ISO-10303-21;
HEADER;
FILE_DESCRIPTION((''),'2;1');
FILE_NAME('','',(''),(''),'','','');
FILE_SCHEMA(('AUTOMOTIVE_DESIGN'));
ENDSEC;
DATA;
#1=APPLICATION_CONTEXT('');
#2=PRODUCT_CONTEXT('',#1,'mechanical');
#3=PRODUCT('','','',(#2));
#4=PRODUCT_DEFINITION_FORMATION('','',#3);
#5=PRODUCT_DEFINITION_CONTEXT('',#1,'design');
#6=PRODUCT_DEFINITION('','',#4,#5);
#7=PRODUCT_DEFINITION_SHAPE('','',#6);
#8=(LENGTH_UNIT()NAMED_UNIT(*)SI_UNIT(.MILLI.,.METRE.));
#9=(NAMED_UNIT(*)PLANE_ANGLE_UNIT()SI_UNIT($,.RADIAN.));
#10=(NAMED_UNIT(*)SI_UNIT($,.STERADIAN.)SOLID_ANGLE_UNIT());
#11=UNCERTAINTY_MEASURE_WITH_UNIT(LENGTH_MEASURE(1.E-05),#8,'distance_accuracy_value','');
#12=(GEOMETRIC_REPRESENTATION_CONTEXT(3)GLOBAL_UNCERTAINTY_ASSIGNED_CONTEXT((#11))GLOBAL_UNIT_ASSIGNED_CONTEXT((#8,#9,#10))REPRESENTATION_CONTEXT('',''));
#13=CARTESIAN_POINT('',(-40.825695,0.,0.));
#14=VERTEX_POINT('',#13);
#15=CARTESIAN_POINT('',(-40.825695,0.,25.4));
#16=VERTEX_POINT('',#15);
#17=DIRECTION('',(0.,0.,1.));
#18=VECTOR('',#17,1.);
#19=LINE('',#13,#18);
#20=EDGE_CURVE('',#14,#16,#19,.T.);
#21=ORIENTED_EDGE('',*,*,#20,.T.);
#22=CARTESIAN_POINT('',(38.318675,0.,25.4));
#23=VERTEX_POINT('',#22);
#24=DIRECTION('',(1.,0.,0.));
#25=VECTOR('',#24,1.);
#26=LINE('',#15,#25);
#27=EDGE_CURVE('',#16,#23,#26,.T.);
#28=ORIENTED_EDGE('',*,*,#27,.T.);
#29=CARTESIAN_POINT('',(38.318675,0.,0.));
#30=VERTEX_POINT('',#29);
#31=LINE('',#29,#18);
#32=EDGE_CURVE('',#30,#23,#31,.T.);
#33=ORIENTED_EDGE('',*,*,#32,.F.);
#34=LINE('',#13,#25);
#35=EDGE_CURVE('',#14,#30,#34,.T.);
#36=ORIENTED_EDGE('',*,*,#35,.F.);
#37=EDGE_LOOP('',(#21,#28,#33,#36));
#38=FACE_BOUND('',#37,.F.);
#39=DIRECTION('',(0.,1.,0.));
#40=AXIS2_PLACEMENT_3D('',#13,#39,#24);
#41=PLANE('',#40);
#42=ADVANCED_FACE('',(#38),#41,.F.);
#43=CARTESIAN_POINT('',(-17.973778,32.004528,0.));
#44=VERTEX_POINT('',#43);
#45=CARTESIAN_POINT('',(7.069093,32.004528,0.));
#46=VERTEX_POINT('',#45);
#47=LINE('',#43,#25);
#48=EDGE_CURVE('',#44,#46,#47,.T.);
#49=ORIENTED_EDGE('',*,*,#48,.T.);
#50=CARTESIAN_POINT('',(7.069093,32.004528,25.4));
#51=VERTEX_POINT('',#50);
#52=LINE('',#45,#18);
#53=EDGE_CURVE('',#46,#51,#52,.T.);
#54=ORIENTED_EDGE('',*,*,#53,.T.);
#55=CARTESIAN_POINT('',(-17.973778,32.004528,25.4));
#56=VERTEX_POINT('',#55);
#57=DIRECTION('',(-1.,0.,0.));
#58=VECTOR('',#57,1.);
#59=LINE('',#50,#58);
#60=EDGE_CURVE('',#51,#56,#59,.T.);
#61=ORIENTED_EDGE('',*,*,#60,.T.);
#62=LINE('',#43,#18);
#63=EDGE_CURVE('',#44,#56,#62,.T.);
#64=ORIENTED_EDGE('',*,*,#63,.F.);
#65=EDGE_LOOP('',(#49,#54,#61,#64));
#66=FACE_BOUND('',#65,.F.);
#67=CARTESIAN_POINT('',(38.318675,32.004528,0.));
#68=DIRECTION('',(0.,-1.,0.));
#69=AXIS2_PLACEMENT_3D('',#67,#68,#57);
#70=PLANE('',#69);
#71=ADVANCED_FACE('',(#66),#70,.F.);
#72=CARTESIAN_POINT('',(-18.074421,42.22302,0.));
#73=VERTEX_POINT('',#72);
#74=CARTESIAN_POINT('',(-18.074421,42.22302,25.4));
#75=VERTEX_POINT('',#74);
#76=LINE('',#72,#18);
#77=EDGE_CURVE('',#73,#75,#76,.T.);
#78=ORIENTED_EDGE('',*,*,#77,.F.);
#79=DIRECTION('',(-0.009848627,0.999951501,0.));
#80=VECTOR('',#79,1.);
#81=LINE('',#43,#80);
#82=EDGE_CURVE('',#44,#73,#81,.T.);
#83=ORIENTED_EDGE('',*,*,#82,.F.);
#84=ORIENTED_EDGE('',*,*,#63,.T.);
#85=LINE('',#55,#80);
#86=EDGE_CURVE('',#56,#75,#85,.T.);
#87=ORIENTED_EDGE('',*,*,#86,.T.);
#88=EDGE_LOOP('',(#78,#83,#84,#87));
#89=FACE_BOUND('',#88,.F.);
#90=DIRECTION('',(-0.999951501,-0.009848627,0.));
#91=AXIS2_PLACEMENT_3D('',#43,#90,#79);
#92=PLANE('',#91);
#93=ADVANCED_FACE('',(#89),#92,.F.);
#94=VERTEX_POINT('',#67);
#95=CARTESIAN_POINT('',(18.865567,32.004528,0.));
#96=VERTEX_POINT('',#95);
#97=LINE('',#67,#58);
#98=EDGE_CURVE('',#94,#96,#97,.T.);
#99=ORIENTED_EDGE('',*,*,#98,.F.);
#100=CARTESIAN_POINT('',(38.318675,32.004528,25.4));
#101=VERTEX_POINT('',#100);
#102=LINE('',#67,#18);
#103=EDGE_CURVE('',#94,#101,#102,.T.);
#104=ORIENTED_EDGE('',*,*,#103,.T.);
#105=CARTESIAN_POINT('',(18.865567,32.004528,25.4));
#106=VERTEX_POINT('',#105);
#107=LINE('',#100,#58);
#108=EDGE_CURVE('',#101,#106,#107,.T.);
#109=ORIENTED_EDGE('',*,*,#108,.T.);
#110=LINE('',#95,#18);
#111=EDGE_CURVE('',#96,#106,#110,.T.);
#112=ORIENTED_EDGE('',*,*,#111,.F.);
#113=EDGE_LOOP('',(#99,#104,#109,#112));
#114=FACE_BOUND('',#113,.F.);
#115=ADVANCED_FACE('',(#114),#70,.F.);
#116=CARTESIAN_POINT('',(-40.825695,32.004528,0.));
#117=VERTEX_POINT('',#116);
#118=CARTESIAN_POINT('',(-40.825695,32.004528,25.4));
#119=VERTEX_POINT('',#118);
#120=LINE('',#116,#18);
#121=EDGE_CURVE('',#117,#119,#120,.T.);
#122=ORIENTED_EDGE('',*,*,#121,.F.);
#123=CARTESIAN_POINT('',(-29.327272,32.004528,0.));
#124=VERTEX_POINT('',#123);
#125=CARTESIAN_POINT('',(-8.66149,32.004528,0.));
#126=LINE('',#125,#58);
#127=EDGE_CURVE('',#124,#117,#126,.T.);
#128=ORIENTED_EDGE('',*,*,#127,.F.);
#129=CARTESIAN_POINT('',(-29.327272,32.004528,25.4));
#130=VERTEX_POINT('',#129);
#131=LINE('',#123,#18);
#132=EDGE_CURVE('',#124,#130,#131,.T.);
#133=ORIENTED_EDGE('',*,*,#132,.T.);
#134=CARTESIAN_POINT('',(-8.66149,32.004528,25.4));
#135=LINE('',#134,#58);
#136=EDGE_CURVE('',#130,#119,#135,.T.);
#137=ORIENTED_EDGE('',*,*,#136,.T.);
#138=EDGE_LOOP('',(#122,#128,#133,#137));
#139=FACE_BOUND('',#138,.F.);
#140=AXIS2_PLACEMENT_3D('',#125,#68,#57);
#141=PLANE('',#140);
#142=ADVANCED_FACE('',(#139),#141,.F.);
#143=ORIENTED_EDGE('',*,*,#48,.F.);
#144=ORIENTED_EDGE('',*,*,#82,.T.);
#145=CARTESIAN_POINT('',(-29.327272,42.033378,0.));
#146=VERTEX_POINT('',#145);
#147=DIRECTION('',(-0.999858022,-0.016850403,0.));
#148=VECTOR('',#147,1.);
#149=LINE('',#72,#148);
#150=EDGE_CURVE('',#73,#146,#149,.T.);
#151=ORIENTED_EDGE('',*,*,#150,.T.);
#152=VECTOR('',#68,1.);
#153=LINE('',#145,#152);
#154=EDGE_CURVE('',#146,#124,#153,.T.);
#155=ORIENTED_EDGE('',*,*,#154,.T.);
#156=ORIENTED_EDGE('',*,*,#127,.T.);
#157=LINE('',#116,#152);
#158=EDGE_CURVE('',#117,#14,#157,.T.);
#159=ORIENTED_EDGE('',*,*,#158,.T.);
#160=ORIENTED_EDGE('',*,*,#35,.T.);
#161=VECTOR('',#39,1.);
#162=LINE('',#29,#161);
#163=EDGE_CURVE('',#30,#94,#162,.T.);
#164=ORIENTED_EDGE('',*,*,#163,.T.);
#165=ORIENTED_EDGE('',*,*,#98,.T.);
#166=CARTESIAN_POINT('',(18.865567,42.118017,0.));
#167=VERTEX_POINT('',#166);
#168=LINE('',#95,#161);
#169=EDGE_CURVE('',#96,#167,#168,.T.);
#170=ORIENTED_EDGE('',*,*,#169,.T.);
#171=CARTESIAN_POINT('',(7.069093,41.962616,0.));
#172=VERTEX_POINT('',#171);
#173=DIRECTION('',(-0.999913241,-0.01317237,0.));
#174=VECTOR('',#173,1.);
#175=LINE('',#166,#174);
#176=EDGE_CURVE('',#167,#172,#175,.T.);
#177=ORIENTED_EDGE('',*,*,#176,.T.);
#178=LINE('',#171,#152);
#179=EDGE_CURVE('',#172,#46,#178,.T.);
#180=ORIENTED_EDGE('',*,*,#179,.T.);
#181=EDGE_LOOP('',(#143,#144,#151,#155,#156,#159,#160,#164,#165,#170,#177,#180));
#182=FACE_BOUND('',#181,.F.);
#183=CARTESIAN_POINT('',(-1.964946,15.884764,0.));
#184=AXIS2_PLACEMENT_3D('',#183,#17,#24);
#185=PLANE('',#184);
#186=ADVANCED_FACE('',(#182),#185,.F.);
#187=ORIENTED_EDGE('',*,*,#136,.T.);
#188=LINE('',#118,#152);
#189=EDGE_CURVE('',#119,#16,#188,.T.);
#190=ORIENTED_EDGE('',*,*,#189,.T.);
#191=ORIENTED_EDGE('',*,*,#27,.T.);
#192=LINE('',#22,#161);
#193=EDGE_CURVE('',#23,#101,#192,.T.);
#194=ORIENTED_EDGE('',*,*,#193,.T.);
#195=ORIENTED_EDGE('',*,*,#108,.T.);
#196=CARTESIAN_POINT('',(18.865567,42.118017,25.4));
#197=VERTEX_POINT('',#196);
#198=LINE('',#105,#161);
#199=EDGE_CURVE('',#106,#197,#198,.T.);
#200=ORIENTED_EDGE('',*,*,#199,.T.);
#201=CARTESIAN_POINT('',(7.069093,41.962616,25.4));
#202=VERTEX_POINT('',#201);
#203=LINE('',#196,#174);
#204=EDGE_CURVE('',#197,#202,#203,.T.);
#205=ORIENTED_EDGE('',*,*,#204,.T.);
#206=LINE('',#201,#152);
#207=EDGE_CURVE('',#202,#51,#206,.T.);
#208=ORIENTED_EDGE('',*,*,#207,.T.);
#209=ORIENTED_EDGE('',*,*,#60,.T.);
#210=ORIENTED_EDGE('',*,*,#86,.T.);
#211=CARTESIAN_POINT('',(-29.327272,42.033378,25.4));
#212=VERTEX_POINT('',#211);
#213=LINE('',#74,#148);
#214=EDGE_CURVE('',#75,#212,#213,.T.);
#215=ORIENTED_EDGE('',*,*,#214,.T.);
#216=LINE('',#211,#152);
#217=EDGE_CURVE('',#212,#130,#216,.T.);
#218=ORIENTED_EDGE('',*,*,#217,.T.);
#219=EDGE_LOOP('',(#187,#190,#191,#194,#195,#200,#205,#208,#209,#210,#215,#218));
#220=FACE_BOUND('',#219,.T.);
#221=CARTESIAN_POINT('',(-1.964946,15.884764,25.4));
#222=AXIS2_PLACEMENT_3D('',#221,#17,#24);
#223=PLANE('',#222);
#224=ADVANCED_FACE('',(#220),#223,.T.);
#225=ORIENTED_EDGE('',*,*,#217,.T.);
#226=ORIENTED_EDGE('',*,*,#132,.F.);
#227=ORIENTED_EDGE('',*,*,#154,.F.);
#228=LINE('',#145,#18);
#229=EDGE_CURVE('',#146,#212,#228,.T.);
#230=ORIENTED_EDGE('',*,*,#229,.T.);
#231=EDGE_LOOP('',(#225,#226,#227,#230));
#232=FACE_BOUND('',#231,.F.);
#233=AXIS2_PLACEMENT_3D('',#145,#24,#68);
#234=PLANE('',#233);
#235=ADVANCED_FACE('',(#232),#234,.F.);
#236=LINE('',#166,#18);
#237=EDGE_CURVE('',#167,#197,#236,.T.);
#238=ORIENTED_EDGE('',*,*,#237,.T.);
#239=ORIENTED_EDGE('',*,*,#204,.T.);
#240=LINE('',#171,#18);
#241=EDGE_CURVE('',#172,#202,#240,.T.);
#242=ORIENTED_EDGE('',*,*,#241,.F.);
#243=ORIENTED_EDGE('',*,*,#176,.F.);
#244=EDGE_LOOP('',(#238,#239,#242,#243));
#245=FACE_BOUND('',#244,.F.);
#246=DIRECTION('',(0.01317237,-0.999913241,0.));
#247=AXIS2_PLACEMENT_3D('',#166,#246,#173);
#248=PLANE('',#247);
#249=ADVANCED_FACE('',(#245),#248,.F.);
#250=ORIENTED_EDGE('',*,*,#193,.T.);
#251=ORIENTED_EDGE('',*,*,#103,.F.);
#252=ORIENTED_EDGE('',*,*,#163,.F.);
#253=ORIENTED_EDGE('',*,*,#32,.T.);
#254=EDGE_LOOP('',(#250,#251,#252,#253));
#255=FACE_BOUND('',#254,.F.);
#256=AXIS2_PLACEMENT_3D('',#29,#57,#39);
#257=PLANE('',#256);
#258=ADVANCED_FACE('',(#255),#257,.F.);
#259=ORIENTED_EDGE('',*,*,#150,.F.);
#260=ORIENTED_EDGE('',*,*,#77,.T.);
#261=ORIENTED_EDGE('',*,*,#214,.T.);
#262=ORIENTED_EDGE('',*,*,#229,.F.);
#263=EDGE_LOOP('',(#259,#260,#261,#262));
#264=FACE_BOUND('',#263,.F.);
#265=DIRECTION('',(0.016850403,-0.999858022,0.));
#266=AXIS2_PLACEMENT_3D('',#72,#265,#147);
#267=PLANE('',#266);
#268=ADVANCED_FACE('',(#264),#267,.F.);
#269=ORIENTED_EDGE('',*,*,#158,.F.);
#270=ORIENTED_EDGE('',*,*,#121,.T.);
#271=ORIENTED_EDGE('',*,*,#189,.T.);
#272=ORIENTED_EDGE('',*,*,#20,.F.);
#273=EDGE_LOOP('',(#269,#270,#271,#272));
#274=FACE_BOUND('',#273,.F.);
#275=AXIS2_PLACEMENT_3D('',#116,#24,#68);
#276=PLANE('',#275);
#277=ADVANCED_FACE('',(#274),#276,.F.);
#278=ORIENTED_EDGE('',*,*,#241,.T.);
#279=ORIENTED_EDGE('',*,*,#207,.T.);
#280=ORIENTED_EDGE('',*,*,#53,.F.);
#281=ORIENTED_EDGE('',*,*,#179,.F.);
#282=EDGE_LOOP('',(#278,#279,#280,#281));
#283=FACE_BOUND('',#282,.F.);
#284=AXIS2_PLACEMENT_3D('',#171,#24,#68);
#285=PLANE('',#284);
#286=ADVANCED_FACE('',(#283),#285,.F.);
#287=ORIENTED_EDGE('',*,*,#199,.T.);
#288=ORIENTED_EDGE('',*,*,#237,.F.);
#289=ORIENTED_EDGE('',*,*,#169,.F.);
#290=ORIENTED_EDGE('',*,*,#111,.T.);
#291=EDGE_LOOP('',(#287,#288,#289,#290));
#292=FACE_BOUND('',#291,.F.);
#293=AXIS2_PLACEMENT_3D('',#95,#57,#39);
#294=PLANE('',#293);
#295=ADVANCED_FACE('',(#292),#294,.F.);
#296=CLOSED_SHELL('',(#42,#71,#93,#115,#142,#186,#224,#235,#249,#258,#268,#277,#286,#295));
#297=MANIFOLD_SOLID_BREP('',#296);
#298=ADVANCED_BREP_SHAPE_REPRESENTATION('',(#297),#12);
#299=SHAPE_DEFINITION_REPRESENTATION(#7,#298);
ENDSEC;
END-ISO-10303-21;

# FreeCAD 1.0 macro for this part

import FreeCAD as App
import Part
import Sketcher

V = App.Vector
Q = App.Units.Quantity


def add_polygon(sketch, points):
    """Adds a closed chain of lines whose ends are joined by coincident constraints."""
    first, n = sketch.GeometryCount, len(points)
    for a, b in zip(points, points[1:] + points[:1]):
        sketch.addGeometry(Part.LineSegment(App.Vector(*a, 0), App.Vector(*b, 0)), False)
    for i in range(n):
        sketch.addConstraint(Sketcher.Constraint("Coincident", first + i, 2, first + (i + 1) % n, 1))

doc = App.newDocument("Part")
body = doc.addObject("PartDesign::Body", "Body")

# Sketch on XY plane
sketch1 = doc.addObject("Sketcher::SketchObject", "Sketch")
body.addObject(sketch1)
sketch1.AttachmentSupport = (doc.XY_Plane, [""])
sketch1.MapMode = "FlatFace"
add_polygon(sketch1, [(-40.8, 32), (-40.8, 0), (38.3, 0), (38.3, 32), (0, 32), (0, 18.5), (5.2, 18.5), (4.9, 13.1), (0, 13.1), (0, 7.3), (-8.7, 7.3), (-8.7, 13.3), (-13.4, 13.3), (-13.4, 18.9), (-8.7, 18.9), (-8.7, 32)])  # lines 0-15
sketch1.addConstraint(Sketcher.Constraint("Vertical", 0))
sketch1.addConstraint(Sketcher.Constraint("Horizontal", 1))
sketch1.addConstraint(Sketcher.Constraint("Vertical", 2))
sketch1.addConstraint(Sketcher.Constraint("Horizontal", 3))
sketch1.addConstraint(Sketcher.Constraint("Vertical", 4))
sketch1.addConstraint(Sketcher.Constraint("Horizontal", 5))
sketch1.addConstraint(Sketcher.Constraint("Horizontal", 7))
sketch1.addConstraint(Sketcher.Constraint("Vertical", 8))
sketch1.addConstraint(Sketcher.Constraint("Horizontal", 9))
sketch1.addConstraint(Sketcher.Constraint("Vertical", 10))
sketch1.addConstraint(Sketcher.Constraint("Horizontal", 11))
sketch1.addConstraint(Sketcher.Constraint("Vertical", 12))
sketch1.addConstraint(Sketcher.Constraint("Horizontal", 13))
sketch1.addConstraint(Sketcher.Constraint("Vertical", 14))
sketch1.addConstraint(Sketcher.Constraint("Horizontal", 15))
sketch1.addConstraint(Sketcher.Constraint("PointOnObject", 0, 2, -1))
sketch1.addConstraint(Sketcher.Constraint("PointOnObject", 3, 2, -2))
sketch1.addConstraint(Sketcher.Constraint("PointOnObject", 7, 2, -2))
sketch1.addConstraint(Sketcher.Constraint("Horizontal", 3, 2, 14, 2))
sketch1.addConstraint(Sketcher.Constraint("Vertical", 10, 2, 13, 2))
sketch1.addConstraint(Sketcher.Constraint("DistanceX", 1, 1, 1, 2, 79.14437))
sketch1.addConstraint(Sketcher.Constraint("DistanceX", 7, 2, 7, 1, 4.928618))
sketch1.addConstraint(Sketcher.Constraint("DistanceX", 9, 2, 9, 1, 8.66149))
sketch1.addConstraint(Sketcher.Constraint("DistanceY", 10, 1, 10, 2, 5.97405))
sketch1.addConstraint(Sketcher.Constraint("DistanceX", 6, 2, 5, 2, 0.242999))
sketch1.addConstraint(Sketcher.Constraint("Distance", 6, 5.339049))
sketch1.addConstraint(Sketcher.Constraint("DistanceX", 3, 2, 3, 1, 38.318675))
sketch1.addConstraint(Sketcher.Constraint("DistanceX", 11, 2, 11, 1, 4.780888))
sketch1.addConstraint(Sketcher.Constraint("DistanceY", 0, 2, 0, 1, 32.004528))
sketch1.addConstraint(Sketcher.Constraint("DistanceY", 4, 2, 4, 1, 13.540505))
sketch1.addConstraint(Sketcher.Constraint("DistanceY", 8, 2, 8, 1, 5.825538))
sketch1.addConstraint(Sketcher.Constraint("DistanceY", 12, 1, 12, 2, 5.591635))
pad1 = doc.addObject("PartDesign::Pad", "Pad")
body.addObject(pad1)
pad1.Profile = sketch1
pad1.Length = Q("1 in")

# Sketch on XY plane
sketch2 = doc.addObject("Sketcher::SketchObject", "Sketch001")
body.addObject(sketch2)
sketch2.AttachmentSupport = (doc.XY_Plane, [""])
sketch2.MapMode = "FlatFace"
add_polygon(sketch2, [(-41, 32), (-41, 0), (38, 0), (38, 32), (19, 32), (19, 42), (7, 42), (7, 32), (-18, 32), (-18, 42), (-29, 42), (-29, 32)])  # lines 0-11
sketch2.addConstraint(Sketcher.Constraint("Vertical", 0))
sketch2.addConstraint(Sketcher.Constraint("Horizontal", 1))
sketch2.addConstraint(Sketcher.Constraint("Vertical", 2))
sketch2.addConstraint(Sketcher.Constraint("Horizontal", 3))
sketch2.addConstraint(Sketcher.Constraint("Vertical", 4))
sketch2.addConstraint(Sketcher.Constraint("Vertical", 6))
sketch2.addConstraint(Sketcher.Constraint("Horizontal", 7))
sketch2.addConstraint(Sketcher.Constraint("Vertical", 10))
sketch2.addConstraint(Sketcher.Constraint("Horizontal", 11))
sketch2.addConstraint(Sketcher.Constraint("PointOnObject", 0, 2, -1))
sketch2.addConstraint(Sketcher.Constraint("Horizontal", 3, 2, 6, 2))
sketch2.addConstraint(Sketcher.Constraint("Horizontal", 7, 2, 10, 2))
sketch2.addConstraint(Sketcher.Constraint("DistanceX", 1, 1, 1, 2, 79.14437))
sketch2.addConstraint(Sketcher.Constraint("DistanceX", 3, 2, 3, 1, 19.453108))
sketch2.addConstraint(Sketcher.Constraint("DistanceX", 7, 2, 7, 1, 25.042871))
sketch2.addConstraint(Sketcher.Constraint("DistanceY", 4, 1, 4, 2, 10.113489))
sketch2.addConstraint(Sketcher.Constraint("DistanceY", 10, 2, 10, 1, 10.02885))
sketch2.addConstraint(Sketcher.Constraint("DistanceY", 5, 2, 4, 2, 0.155401))
sketch2.addConstraint(Sketcher.Constraint("Distance", 9, 11.254449))
sketch2.addConstraint(Sketcher.Constraint("DistanceX", 11, 2, 11, 1, 11.498423))
sketch2.addConstraint(Sketcher.Constraint("DistanceY", 0, 2, 0, 1, 32.004528))
sketch2.addConstraint(Sketcher.Constraint("DistanceX", 8, 2, -1, 1, 18.074421))
sketch2.addConstraint(Sketcher.Constraint("DistanceY", -1, 1, 8, 2, 42.22302))
sketch2.addConstraint(Sketcher.Constraint("DistanceX", 5, 2, 2, 2, 31.249582))
pad2 = doc.addObject("PartDesign::Pad", "Pad001")
body.addObject(pad2)
pad2.Profile = sketch2
pad2.Length = Q("1 in")

doc.recompute()
